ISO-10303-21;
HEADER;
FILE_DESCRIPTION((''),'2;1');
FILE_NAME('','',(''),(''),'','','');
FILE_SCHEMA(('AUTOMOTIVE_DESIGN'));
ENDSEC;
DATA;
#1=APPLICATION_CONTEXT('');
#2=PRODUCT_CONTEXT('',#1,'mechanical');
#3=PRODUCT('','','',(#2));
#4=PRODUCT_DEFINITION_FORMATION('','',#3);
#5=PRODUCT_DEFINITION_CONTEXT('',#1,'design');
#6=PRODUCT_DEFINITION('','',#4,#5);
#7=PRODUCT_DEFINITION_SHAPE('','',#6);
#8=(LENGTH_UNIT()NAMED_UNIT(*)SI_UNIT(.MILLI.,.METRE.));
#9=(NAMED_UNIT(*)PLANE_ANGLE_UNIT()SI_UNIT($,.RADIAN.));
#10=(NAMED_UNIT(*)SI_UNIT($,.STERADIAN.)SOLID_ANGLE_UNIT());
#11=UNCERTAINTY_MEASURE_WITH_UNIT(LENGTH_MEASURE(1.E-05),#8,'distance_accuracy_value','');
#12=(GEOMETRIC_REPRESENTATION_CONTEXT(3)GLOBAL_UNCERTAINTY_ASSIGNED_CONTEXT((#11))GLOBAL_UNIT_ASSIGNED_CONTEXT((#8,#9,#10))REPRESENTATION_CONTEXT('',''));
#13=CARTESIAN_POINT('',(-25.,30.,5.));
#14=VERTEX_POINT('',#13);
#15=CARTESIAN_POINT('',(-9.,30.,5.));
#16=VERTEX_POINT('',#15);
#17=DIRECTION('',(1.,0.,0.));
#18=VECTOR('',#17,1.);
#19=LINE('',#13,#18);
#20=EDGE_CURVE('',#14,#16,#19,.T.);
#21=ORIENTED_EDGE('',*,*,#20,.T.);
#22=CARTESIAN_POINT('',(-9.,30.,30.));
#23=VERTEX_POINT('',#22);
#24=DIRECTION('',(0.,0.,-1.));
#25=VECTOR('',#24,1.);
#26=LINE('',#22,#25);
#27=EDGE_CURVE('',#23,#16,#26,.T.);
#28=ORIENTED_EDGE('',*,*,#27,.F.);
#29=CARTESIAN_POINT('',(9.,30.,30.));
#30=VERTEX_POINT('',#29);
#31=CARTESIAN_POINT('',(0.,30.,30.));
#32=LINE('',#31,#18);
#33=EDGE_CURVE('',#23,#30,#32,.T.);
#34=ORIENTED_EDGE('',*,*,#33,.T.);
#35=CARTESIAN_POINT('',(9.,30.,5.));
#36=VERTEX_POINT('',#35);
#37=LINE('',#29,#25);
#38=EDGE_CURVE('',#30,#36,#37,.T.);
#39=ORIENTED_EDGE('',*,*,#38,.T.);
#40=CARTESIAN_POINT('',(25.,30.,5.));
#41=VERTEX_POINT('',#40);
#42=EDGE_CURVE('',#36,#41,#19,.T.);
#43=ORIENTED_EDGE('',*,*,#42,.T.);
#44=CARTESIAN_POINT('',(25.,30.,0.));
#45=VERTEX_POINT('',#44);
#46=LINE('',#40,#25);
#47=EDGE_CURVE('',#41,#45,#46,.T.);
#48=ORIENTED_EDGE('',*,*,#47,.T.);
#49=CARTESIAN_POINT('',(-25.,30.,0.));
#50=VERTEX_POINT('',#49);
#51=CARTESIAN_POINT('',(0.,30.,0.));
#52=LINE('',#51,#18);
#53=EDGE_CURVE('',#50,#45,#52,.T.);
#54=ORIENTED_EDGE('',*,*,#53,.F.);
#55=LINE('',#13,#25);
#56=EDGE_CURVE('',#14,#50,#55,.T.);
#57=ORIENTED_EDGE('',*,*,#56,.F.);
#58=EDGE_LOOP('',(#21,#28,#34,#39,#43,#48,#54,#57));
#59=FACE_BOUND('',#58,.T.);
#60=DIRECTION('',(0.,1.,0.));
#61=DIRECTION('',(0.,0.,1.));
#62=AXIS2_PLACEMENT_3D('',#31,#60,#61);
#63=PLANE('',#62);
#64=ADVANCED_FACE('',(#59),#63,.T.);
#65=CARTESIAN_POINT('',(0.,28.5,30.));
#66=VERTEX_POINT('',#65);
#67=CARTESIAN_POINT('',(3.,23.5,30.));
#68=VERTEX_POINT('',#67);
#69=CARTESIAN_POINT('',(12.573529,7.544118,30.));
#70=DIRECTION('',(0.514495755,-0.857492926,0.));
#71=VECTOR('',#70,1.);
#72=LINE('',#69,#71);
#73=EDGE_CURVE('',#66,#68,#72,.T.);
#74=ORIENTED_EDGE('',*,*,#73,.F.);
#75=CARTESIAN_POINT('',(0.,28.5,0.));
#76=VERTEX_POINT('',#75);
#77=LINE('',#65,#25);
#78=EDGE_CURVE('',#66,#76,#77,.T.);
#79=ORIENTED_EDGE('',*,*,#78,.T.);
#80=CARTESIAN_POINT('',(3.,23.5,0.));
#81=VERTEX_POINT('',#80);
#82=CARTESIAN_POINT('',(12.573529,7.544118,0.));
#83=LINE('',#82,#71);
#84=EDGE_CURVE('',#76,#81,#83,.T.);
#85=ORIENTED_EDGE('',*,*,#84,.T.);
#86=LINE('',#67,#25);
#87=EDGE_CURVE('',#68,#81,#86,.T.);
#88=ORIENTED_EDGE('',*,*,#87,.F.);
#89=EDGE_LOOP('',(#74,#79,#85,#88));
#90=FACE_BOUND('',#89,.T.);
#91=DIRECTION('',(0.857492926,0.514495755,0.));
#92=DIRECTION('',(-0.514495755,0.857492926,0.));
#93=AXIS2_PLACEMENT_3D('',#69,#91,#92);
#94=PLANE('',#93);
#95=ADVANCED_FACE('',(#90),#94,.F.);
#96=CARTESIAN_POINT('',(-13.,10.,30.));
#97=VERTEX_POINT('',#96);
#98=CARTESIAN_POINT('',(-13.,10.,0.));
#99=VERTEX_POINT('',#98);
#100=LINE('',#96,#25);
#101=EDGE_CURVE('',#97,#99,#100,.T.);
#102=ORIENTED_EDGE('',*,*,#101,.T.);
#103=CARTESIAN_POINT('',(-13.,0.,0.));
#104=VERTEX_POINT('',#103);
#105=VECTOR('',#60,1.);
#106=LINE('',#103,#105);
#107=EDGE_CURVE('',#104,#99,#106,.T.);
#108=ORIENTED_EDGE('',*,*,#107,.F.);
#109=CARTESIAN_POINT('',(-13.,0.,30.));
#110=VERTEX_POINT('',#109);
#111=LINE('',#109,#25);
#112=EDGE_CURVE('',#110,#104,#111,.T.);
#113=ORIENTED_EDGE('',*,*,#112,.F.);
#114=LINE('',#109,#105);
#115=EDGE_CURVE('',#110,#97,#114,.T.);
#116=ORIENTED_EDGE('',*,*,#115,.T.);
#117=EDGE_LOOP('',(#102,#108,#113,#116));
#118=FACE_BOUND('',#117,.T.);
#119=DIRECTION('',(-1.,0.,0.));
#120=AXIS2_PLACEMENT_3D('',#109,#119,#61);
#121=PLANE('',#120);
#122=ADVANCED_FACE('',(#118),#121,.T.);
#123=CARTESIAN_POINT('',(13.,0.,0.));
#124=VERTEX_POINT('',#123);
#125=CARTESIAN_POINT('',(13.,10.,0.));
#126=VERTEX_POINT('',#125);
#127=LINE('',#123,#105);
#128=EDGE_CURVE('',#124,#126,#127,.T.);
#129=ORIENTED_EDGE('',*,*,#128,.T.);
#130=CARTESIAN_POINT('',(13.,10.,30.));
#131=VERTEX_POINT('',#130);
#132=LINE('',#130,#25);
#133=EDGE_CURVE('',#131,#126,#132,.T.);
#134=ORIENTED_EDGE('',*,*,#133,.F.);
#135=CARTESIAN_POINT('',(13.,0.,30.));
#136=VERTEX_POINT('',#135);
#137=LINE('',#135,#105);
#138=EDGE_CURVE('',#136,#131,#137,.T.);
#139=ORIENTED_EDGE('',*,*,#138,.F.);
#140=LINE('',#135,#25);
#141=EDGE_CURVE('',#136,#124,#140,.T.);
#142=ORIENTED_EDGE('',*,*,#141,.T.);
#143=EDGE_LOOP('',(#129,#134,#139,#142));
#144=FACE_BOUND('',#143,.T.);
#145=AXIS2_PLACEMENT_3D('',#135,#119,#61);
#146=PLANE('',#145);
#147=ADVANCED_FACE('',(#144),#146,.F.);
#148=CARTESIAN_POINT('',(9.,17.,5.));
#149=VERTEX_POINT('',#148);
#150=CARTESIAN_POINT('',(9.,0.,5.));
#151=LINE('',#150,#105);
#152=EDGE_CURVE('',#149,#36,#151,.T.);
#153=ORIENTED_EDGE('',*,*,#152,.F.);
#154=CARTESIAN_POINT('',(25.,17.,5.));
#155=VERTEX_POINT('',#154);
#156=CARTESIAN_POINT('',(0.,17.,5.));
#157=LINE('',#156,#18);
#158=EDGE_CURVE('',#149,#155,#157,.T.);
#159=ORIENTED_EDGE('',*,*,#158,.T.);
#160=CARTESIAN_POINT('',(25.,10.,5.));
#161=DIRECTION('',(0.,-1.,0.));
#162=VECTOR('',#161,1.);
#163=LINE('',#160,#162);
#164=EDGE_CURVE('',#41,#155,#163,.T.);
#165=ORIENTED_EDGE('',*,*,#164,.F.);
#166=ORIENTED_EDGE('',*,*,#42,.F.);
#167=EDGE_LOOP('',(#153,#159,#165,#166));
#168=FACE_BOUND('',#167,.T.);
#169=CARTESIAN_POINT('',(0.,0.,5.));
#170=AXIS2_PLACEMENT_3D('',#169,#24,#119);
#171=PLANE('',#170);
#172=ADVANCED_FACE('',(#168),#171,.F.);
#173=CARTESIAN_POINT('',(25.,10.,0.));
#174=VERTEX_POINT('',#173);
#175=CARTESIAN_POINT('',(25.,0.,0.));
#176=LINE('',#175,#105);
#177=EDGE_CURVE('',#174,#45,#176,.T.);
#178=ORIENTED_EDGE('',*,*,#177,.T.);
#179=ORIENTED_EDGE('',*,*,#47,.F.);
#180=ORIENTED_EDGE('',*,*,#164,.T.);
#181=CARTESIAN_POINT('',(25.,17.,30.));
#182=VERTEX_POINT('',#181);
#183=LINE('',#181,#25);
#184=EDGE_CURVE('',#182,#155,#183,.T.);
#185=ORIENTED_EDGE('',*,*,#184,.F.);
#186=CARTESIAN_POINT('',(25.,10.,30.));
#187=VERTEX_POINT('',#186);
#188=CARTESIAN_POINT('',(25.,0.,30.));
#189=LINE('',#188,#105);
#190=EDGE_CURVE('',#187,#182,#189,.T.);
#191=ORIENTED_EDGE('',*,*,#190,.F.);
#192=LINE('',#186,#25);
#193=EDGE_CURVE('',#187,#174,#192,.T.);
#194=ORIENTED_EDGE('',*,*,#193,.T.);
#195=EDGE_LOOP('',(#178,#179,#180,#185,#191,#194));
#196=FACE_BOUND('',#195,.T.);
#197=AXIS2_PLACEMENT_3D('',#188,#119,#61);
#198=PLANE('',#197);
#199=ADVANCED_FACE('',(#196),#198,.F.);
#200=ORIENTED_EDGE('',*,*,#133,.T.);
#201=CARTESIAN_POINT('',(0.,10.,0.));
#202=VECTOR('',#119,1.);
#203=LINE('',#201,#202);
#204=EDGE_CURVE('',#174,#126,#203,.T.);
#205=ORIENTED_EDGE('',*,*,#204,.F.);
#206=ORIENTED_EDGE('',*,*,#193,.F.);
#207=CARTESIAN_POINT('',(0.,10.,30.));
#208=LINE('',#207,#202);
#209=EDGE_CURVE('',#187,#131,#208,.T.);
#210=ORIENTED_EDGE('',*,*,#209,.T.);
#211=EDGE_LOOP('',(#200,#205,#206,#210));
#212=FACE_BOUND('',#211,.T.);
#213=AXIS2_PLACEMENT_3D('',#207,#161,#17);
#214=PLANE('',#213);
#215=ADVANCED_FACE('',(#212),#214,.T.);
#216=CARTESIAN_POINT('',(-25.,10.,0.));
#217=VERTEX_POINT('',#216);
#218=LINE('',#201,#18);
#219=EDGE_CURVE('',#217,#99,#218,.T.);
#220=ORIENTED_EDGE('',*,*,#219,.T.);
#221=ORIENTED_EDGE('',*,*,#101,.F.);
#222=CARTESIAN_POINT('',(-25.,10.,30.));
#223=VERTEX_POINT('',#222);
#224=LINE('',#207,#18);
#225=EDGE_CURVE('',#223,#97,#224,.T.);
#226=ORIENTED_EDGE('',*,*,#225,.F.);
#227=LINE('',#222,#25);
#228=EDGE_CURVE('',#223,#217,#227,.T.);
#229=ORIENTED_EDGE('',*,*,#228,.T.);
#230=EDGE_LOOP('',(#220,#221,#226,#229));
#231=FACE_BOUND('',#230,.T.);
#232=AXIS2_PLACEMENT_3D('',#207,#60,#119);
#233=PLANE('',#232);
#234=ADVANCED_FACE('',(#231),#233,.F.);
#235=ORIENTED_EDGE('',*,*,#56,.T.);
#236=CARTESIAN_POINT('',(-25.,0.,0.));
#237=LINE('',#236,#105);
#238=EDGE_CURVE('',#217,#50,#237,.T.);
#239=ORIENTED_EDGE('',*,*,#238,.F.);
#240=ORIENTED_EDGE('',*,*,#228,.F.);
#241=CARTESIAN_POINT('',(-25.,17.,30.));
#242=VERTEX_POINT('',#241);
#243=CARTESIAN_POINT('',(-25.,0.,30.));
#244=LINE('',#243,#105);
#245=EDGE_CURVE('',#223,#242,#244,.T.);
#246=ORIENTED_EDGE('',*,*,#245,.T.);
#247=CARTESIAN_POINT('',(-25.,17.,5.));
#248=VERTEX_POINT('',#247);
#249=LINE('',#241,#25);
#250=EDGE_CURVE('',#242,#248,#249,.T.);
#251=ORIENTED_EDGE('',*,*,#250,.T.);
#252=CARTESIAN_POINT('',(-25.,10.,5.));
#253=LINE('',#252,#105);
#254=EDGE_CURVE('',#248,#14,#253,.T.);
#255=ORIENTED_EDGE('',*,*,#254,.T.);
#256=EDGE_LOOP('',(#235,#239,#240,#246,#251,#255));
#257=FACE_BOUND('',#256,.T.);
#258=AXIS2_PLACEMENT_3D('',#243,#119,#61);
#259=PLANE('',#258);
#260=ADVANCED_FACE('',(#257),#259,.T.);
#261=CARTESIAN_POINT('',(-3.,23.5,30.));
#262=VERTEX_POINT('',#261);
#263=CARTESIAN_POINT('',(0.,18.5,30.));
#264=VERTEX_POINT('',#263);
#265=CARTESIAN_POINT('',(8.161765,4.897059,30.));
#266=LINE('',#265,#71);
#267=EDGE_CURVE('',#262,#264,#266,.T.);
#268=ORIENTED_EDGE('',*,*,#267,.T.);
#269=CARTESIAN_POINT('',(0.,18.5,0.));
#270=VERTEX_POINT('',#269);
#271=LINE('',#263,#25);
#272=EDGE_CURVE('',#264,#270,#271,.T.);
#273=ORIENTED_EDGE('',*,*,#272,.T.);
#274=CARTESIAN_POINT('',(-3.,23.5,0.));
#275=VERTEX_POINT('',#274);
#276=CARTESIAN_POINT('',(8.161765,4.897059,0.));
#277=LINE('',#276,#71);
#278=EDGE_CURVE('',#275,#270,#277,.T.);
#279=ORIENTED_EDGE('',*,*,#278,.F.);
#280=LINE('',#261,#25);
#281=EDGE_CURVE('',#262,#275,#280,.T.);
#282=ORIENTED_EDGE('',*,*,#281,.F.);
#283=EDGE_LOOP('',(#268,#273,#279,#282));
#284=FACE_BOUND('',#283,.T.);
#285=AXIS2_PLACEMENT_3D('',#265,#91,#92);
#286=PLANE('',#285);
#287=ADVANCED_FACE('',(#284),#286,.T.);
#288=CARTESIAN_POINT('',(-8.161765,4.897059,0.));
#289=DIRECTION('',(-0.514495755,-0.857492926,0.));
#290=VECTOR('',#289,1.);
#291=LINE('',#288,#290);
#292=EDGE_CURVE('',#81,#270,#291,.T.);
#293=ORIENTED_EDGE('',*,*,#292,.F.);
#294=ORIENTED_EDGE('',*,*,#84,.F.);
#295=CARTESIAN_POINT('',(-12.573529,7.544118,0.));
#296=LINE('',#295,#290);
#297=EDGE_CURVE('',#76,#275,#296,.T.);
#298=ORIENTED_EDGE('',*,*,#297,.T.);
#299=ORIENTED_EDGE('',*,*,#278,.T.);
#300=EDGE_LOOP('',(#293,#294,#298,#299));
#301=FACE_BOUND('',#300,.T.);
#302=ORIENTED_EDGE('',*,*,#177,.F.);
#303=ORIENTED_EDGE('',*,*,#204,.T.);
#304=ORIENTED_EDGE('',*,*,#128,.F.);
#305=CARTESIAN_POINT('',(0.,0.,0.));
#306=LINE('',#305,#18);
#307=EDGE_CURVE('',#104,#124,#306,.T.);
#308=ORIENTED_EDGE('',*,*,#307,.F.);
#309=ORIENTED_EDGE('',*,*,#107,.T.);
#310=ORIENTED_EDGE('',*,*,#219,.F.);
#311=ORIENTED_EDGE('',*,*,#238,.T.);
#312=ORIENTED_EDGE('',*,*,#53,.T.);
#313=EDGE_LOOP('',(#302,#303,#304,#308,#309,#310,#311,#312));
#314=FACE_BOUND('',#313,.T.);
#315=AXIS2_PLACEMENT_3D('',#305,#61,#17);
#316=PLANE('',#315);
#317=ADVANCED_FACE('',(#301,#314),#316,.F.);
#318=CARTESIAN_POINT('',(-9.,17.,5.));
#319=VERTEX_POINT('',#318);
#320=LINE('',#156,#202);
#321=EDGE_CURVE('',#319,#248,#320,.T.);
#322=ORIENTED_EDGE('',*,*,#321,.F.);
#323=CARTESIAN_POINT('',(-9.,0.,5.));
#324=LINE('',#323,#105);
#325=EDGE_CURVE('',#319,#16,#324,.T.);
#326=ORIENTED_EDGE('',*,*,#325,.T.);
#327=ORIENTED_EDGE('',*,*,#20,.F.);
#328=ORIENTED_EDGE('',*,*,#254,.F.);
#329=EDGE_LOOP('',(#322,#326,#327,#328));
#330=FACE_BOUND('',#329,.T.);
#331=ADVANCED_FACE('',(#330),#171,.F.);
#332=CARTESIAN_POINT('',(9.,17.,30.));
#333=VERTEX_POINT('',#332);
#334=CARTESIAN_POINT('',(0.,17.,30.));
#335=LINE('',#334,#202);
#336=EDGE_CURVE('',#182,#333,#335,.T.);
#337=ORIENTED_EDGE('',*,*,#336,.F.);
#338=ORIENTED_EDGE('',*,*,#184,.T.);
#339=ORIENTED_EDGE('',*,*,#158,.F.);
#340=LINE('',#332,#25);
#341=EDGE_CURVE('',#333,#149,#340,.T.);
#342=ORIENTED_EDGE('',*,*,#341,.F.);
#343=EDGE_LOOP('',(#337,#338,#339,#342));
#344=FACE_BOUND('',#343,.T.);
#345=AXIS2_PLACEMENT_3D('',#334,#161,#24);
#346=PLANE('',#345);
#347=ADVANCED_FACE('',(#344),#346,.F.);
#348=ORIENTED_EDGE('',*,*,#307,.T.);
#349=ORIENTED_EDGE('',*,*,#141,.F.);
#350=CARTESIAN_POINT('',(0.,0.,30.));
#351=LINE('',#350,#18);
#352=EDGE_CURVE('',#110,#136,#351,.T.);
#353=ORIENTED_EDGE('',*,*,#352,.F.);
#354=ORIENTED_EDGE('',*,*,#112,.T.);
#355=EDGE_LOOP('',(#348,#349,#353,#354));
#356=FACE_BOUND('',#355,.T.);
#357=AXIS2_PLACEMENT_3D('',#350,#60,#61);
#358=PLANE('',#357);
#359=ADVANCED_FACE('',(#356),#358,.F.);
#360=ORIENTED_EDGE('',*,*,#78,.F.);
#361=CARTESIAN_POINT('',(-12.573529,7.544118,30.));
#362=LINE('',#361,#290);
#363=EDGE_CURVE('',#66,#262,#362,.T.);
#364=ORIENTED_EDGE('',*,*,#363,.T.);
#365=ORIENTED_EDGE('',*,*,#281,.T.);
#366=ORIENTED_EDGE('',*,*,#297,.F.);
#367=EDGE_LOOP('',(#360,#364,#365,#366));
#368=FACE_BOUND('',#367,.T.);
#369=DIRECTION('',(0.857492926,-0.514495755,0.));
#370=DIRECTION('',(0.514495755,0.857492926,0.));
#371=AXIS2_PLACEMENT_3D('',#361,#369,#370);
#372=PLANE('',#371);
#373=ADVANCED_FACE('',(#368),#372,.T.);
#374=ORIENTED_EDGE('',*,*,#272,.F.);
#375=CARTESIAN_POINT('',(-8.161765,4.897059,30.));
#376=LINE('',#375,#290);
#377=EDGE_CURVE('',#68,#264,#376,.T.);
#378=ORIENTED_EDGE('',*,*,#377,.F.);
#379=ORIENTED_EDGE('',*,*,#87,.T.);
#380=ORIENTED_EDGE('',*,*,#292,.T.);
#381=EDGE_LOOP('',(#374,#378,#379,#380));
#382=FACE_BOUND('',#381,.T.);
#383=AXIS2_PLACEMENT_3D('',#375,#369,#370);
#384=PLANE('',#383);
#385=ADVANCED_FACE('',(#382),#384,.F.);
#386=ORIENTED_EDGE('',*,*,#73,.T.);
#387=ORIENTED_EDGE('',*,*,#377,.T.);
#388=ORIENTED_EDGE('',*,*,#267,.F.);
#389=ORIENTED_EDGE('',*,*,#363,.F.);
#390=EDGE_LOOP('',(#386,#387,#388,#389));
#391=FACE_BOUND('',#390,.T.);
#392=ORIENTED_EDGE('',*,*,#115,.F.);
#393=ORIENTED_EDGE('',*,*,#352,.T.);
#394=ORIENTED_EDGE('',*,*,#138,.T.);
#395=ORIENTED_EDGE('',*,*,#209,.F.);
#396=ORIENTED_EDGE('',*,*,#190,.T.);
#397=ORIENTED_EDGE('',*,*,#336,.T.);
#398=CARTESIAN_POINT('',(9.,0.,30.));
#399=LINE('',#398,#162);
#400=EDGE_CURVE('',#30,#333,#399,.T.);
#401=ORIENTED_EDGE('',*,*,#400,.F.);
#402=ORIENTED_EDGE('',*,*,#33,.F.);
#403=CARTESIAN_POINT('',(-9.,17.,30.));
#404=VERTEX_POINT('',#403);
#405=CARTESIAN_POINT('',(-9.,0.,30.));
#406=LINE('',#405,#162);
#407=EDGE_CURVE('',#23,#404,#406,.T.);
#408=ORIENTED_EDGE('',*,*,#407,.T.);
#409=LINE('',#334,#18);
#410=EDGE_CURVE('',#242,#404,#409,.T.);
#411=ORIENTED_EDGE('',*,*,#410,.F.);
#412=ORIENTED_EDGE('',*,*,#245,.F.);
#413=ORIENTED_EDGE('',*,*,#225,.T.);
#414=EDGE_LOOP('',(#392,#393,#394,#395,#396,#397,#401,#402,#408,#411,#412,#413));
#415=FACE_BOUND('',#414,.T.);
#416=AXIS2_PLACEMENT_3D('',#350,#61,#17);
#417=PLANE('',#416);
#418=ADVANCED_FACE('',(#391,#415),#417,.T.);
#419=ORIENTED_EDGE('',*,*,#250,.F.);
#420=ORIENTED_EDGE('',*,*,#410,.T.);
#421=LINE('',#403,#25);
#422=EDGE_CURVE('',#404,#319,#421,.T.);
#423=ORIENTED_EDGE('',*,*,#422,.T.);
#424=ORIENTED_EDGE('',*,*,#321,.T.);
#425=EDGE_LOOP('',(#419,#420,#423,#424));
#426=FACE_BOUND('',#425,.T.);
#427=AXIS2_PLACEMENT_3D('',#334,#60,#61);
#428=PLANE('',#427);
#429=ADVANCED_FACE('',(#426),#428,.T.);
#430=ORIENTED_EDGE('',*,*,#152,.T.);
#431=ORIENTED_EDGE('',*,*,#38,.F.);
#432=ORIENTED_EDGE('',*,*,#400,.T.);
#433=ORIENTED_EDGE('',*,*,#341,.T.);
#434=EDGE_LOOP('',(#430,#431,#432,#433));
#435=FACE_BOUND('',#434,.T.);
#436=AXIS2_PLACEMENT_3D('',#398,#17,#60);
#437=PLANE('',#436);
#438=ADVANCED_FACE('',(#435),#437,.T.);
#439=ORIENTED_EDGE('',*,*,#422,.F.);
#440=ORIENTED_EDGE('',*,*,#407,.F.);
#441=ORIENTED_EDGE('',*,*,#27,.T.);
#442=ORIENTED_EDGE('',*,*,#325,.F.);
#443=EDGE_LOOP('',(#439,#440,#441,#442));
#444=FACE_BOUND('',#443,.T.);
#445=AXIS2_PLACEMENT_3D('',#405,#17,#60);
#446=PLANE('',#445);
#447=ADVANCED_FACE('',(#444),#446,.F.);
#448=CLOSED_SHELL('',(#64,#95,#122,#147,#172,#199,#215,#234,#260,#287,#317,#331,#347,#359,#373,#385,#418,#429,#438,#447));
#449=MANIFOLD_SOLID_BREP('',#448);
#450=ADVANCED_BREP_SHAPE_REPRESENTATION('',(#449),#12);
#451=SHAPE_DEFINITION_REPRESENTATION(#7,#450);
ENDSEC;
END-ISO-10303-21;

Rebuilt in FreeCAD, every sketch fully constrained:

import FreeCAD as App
import Part
import Sketcher

V = App.Vector


def add_polygon(sketch, points):
    """Adds a closed chain of lines whose ends are joined by coincident constraints."""
    first, n = sketch.GeometryCount, len(points)
    for a, b in zip(points, points[1:] + points[:1]):
        sketch.addGeometry(Part.LineSegment(App.Vector(*a, 0), App.Vector(*b, 0)), False)
    for i in range(n):
        sketch.addConstraint(Sketcher.Constraint("Coincident", first + i, 2, first + (i + 1) % n, 1))

doc = App.newDocument("Part")
body = doc.addObject("PartDesign::Body", "Body")

# Sketch on XY plane
sketch1 = body.newObject("Sketcher::SketchObject", "Sketch")
sketch1.AttachmentSupport = (doc.getObject("XY_Plane"), [""])
sketch1.MapMode = "FlatFace"
add_polygon(sketch1, [(9, 17), (9, 30), (0, 30), (0, 28.5), (3, 23.5), (0, 18.5), (0, 0), (13, 0), (13, 10), (25, 10), (25, 17)])  # lines 0-10
sketch1.addConstraint(Sketcher.Constraint("Vertical", 0))
sketch1.addConstraint(Sketcher.Constraint("Horizontal", 1))
sketch1.addConstraint(Sketcher.Constraint("Vertical", 2))
sketch1.addConstraint(Sketcher.Constraint("Vertical", 5))
sketch1.addConstraint(Sketcher.Constraint("Horizontal", 6))
sketch1.addConstraint(Sketcher.Constraint("Vertical", 7))
sketch1.addConstraint(Sketcher.Constraint("Horizontal", 8))
sketch1.addConstraint(Sketcher.Constraint("Vertical", 9))
sketch1.addConstraint(Sketcher.Constraint("Horizontal", 10))
sketch1.addConstraint(Sketcher.Constraint("Coincident", 5, 2, -1, 1))
sketch1.addConstraint(Sketcher.Constraint("PointOnObject", 1, 2, -2))
sketch1.addConstraint(Sketcher.Constraint("Equal", 6, 0))
sketch1.addConstraint(Sketcher.Constraint("Equal", 3, 4))
sketch1.addConstraint(Sketcher.Constraint("DistanceX", 1, 2, 1, 1, 9.0))
sketch1.addConstraint(Sketcher.Constraint("DistanceX", 6, 1, 6, 2, 13.0))
sketch1.addConstraint(Sketcher.Constraint("DistanceX", 8, 1, 8, 2, 12.0))
sketch1.addConstraint(Sketcher.Constraint("DistanceY", 7, 1, 7, 2, 10.0))
sketch1.addConstraint(Sketcher.Constraint("DistanceY", 9, 1, 9, 2, 7.0))
sketch1.addConstraint(Sketcher.Constraint("DistanceY", 2, 2, 2, 1, 1.5))
sketch1.addConstraint(Sketcher.Constraint("DistanceY", 5, 2, 5, 1, 18.5))
sketch1.addConstraint(Sketcher.Constraint("DistanceX", -1, 1, 3, 2, 3.0))
pad1 = body.newObject("PartDesign::Pad", "Pad")
pad1.Profile = sketch1
pad1.Length = 30
doc.recompute()

mirrored = body.newObject("PartDesign::Mirrored", "Mirrored")
mirrored.Originals = [pad1]
mirrored.MirrorPlane = (doc.getObject("YZ_Plane"), [""])
body.Tip = mirrored

# Sketch on XY plane
sketch2 = body.newObject("Sketcher::SketchObject", "Sketch001")
sketch2.AttachmentSupport = (doc.getObject("XY_Plane"), [""])
sketch2.MapMode = "FlatFace"
add_polygon(sketch2, [(25, 30), (25, 10), (-25, 10), (-25, 30)])  # lines 0-3
add_polygon(sketch2, [(3, 24), (0, 28), (-3, 24), (0, 18)])  # lines 4-7
sketch2.addConstraint(Sketcher.Constraint("Vertical", 0))
sketch2.addConstraint(Sketcher.Constraint("Horizontal", 1))
sketch2.addConstraint(Sketcher.Constraint("Vertical", 2))
sketch2.addConstraint(Sketcher.Constraint("Horizontal", 3))
sketch2.addConstraint(Sketcher.Constraint("Symmetric", 5, 2, 7, 2, -2))
sketch2.addConstraint(Sketcher.Constraint("PointOnObject", 4, 2, -2))
sketch2.addConstraint(Sketcher.Constraint("PointOnObject", 6, 2, -2))
sketch2.addConstraint(Sketcher.Constraint("Parallel", 4, 6))
sketch2.addConstraint(Sketcher.Constraint("DistanceX", 1, 2, 1, 1, 50.0))
sketch2.addConstraint(Sketcher.Constraint("DistanceY", 0, 2, 0, 1, 20.0))
sketch2.addConstraint(Sketcher.Constraint("DistanceX", -1, 1, 0, 2, 25.0))
sketch2.addConstraint(Sketcher.Constraint("DistanceY", -1, 1, 0, 2, 10.0))
sketch2.addConstraint(Sketcher.Constraint("DistanceX", 5, 2, -1, 1, 3.0))
sketch2.addConstraint(Sketcher.Constraint("DistanceY", 5, 2, 4, 2, 5.0))
sketch2.addConstraint(Sketcher.Constraint("DistanceY", -1, 1, 4, 2, 28.5))
pad2 = body.newObject("PartDesign::Pad", "Pad001")
pad2.Profile = sketch2
pad2.Length = 5

doc.recompute()
